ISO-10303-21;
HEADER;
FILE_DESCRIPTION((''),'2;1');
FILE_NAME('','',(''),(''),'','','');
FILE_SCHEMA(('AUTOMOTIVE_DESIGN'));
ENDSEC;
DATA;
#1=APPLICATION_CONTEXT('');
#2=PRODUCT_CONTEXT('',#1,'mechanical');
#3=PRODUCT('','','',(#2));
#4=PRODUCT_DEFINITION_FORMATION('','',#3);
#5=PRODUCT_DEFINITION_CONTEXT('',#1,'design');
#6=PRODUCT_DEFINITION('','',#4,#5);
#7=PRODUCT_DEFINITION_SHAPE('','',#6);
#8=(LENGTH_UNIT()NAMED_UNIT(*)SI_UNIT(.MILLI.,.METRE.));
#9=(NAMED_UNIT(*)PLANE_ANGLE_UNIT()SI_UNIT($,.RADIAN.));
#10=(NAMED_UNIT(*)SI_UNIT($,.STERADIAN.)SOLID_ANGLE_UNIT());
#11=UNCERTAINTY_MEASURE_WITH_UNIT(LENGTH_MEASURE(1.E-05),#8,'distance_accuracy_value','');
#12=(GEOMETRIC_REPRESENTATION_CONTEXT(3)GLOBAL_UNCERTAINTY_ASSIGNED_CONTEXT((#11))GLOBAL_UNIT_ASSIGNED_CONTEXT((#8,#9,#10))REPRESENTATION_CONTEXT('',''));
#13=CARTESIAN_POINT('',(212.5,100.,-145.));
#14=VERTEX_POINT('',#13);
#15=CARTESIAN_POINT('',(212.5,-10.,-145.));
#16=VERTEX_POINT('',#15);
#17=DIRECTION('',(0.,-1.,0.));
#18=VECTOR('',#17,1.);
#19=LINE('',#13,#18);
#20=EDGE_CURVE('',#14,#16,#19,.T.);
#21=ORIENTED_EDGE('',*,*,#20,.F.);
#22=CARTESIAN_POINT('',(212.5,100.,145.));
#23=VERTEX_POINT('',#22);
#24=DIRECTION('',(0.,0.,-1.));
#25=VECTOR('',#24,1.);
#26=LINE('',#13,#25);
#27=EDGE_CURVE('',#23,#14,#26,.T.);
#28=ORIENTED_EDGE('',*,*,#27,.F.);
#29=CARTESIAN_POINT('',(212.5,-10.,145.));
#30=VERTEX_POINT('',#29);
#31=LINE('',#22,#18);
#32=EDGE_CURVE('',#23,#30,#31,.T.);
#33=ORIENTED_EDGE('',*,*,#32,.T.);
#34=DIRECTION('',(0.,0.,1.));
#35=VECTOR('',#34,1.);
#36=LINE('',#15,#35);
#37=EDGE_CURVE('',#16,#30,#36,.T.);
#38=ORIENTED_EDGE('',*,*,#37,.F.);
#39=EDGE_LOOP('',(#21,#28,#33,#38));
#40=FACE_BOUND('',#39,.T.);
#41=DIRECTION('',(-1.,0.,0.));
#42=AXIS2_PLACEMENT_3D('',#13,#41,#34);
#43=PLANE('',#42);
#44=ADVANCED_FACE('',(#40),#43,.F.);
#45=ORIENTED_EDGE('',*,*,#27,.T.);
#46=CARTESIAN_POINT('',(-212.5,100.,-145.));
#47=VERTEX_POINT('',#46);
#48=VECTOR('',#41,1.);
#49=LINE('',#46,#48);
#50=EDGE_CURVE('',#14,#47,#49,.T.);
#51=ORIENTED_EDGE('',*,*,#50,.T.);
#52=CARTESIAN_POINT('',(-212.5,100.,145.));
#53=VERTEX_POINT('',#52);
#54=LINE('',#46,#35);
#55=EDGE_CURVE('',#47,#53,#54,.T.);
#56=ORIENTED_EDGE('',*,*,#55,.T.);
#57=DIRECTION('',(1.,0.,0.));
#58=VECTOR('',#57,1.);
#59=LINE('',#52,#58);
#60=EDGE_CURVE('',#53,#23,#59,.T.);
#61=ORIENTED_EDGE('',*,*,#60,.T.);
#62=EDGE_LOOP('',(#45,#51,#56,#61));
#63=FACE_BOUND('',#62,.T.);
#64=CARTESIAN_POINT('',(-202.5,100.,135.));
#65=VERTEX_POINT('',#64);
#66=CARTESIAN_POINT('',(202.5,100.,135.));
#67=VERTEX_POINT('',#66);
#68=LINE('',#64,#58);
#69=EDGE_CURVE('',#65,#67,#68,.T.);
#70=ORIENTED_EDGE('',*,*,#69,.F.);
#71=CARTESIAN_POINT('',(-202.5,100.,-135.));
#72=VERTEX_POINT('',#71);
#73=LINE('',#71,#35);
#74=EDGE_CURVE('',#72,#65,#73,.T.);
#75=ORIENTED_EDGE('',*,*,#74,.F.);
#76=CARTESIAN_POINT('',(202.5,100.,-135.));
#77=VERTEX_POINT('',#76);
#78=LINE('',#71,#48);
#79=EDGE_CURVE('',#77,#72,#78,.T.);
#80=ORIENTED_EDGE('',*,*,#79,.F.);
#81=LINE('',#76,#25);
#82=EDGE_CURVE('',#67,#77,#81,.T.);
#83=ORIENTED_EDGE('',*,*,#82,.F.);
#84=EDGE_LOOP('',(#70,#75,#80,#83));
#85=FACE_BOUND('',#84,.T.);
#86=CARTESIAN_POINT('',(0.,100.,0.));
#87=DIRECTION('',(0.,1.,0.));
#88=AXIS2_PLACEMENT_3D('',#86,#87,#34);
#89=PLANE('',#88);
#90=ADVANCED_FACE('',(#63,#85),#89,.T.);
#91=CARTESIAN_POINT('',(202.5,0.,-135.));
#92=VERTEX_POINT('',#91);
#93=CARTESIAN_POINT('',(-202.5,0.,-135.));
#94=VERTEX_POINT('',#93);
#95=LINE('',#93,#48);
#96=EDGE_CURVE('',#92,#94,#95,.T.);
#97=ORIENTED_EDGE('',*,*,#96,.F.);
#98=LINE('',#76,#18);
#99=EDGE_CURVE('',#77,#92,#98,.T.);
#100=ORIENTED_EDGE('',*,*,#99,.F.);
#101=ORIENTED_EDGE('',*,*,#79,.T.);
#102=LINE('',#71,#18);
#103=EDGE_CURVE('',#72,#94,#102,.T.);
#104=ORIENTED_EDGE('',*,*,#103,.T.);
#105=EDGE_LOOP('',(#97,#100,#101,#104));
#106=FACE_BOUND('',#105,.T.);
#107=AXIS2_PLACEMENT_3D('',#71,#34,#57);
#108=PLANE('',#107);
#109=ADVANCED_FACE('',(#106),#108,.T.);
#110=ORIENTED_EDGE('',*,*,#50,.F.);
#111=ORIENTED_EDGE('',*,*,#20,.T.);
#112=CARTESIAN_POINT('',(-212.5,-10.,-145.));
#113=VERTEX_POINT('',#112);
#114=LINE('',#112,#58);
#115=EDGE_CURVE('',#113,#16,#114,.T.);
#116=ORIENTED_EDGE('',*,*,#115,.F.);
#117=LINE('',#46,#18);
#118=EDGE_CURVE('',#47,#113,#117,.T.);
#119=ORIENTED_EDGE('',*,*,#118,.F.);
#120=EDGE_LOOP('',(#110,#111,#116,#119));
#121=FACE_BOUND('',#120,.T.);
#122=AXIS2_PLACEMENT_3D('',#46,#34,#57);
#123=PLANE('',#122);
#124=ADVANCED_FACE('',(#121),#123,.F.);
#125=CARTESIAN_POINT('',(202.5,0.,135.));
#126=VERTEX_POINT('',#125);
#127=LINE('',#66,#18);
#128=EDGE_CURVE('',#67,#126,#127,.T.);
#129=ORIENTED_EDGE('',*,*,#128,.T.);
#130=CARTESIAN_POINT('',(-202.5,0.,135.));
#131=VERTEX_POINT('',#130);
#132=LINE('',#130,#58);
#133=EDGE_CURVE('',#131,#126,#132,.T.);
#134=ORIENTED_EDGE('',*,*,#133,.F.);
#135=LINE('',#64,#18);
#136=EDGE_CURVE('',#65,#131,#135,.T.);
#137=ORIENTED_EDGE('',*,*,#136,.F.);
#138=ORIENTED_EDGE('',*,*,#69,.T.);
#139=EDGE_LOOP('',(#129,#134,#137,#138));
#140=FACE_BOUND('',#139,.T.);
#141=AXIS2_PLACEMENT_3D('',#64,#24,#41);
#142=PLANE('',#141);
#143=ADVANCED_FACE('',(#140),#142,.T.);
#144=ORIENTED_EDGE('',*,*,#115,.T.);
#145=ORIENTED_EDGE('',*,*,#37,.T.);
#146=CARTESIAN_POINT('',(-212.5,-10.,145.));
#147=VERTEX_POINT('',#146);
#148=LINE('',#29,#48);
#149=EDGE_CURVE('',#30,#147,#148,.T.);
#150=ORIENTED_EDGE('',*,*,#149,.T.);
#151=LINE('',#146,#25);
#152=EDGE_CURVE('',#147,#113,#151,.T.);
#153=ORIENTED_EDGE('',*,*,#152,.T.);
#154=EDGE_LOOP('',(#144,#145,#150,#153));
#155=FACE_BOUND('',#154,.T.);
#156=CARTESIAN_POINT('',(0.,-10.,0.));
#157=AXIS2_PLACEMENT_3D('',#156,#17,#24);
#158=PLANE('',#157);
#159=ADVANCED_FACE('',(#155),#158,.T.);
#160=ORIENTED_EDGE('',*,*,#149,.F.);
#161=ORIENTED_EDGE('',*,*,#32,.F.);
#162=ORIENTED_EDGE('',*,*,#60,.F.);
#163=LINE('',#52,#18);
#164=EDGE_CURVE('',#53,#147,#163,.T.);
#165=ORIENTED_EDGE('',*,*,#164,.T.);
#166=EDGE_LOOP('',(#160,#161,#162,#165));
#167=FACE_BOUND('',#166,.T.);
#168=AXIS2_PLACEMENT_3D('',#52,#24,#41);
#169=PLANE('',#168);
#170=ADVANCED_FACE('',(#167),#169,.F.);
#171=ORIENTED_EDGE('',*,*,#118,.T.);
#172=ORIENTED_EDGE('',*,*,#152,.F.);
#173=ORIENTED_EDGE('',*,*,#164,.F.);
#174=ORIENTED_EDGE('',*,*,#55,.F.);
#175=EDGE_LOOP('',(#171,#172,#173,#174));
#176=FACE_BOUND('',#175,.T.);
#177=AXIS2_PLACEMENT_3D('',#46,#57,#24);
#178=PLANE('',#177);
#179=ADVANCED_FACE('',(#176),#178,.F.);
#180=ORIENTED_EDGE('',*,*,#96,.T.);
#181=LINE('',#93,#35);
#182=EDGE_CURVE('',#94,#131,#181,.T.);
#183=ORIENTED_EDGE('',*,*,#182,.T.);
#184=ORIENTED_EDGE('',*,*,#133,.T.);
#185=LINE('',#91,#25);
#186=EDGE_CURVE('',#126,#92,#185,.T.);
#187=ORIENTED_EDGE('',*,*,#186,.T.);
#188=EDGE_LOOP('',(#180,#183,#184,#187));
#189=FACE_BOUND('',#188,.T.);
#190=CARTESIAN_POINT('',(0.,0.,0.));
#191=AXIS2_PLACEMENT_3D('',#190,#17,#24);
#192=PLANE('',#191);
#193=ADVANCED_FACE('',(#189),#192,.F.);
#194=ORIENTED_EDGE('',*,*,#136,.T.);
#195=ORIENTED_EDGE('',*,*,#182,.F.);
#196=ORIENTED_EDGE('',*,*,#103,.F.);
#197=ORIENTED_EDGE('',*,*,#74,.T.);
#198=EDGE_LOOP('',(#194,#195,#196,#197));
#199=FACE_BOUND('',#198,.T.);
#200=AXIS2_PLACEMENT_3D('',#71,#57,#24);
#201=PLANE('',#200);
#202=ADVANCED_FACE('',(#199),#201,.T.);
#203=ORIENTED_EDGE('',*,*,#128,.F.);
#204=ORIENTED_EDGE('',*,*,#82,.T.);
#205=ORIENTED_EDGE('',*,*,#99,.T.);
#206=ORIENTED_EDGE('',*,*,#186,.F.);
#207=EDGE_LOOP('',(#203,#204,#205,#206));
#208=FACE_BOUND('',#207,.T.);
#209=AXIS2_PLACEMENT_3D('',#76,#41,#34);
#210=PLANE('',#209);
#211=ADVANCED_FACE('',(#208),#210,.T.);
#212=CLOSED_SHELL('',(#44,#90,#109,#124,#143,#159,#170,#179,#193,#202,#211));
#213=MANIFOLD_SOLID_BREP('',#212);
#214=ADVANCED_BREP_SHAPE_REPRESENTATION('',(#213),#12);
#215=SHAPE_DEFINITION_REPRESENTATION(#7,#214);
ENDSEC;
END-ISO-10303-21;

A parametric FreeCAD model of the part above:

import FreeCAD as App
import Part
import Sketcher

V = App.Vector
Q = App.Units.Quantity

doc = App.newDocument("Part")
body = doc.addObject("PartDesign::Body", "Body")

# Sketch on XZ plane
sketch1 = body.newObject("Sketcher::SketchObject", "Sketch")
sketch1.AttachmentSupport = (doc.getObject("XZ_Plane"), [""])
sketch1.MapMode = "FlatFace"
sketch1.addGeometry([
    Part.LineSegment(V(-212, -145, 0), V(-212, 145, 0)),  # 0
    Part.LineSegment(V(-212, 145, 0), V(212, 145, 0)),  # 1
    Part.LineSegment(V(212, 145, 0), V(212, -145, 0)),  # 2
    Part.LineSegment(V(212, -145, 0), V(-212, -145, 0)),  # 3
    Part.LineSegment(V(202, 135, 0), V(-202, 135, 0)),  # 4
    Part.LineSegment(V(-202, 135, 0), V(-202, -135, 0)),  # 5
    Part.LineSegment(V(-202, -135, 0), V(202, -135, 0)),  # 6
    Part.LineSegment(V(202, -135, 0), V(202, 135, 0)),  # 7
], False)
sketch1.addConstraint([
    Sketcher.Constraint("Coincident", 0, 2, 1, 1),
    Sketcher.Constraint("Coincident", 1, 2, 2, 1),
    Sketcher.Constraint("Coincident", 2, 2, 3, 1),
    Sketcher.Constraint("Coincident", 3, 2, 0, 1),
    Sketcher.Constraint("Coincident", 4, 2, 5, 1),
    Sketcher.Constraint("Coincident", 5, 2, 6, 1),
    Sketcher.Constraint("Coincident", 6, 2, 7, 1),
    Sketcher.Constraint("Coincident", 7, 2, 4, 1),
    Sketcher.Constraint("Vertical", 0),
    Sketcher.Constraint("Horizontal", 1),
    Sketcher.Constraint("Vertical", 2),
    Sketcher.Constraint("Horizontal", 3),
    Sketcher.Constraint("Horizontal", 4),
    Sketcher.Constraint("Vertical", 5),
    Sketcher.Constraint("Horizontal", 6),
    Sketcher.Constraint("Vertical", 7),
    Sketcher.Constraint("Symmetric", 0, 2, 2, 2, -1, 1),
    Sketcher.Constraint("Symmetric", 4, 2, 6, 2, -1, 1),
    Sketcher.Constraint("DistanceX", 1, 1, 1, 2, Q("425 mm")),
    Sketcher.Constraint("DistanceX", 4, 2, 4, 1, Q("405 mm")),
    Sketcher.Constraint("DistanceY", 0, 1, 0, 2, Q("290 mm")),
    Sketcher.Constraint("DistanceY", 5, 2, 5, 1, Q("270 mm")),
])
pad1 = body.newObject("PartDesign::Pad", "Pad")
pad1.Profile = sketch1
pad1.Length = 100
pad1.Reversed = True

# Sketch on XZ plane
sketch2 = body.newObject("Sketcher::SketchObject", "Sketch001")
sketch2.AttachmentSupport = (doc.getObject("XZ_Plane"), [""])
sketch2.MapMode = "FlatFace"
sketch2.addGeometry([
    Part.LineSegment(V(-212, 145, 0), V(-212, -145, 0)),
    Part.LineSegment(V(-212, -145, 0), V(212, -145, 0)),
    Part.LineSegment(V(212, -145, 0), V(212, 145, 0)),
    Part.LineSegment(V(212, 145, 0), V(-212, 145, 0)),
], False)
sketch2.addConstraint([
    Sketcher.Constraint("Coincident", 0, 2, 1, 1),
    Sketcher.Constraint("Coincident", 1, 2, 2, 1),
    Sketcher.Constraint("Coincident", 2, 2, 3, 1),
    Sketcher.Constraint("Coincident", 3, 2, 0, 1),
    Sketcher.Constraint("Vertical", 0),
    Sketcher.Constraint("Horizontal", 1),
    Sketcher.Constraint("Vertical", 2),
    Sketcher.Constraint("Horizontal", 3),
    Sketcher.Constraint("Symmetric", 0, 2, 2, 2, -1, 1),
    Sketcher.Constraint("DistanceX", 1, 1, 1, 2, Q("425 mm")),
    Sketcher.Constraint("DistanceY", 0, 2, 0, 1, Q("290 mm")),
])
pad2 = body.newObject("PartDesign::Pad", "Pad001")
pad2.Profile = sketch2
pad2.Length = 10

doc.recompute()
